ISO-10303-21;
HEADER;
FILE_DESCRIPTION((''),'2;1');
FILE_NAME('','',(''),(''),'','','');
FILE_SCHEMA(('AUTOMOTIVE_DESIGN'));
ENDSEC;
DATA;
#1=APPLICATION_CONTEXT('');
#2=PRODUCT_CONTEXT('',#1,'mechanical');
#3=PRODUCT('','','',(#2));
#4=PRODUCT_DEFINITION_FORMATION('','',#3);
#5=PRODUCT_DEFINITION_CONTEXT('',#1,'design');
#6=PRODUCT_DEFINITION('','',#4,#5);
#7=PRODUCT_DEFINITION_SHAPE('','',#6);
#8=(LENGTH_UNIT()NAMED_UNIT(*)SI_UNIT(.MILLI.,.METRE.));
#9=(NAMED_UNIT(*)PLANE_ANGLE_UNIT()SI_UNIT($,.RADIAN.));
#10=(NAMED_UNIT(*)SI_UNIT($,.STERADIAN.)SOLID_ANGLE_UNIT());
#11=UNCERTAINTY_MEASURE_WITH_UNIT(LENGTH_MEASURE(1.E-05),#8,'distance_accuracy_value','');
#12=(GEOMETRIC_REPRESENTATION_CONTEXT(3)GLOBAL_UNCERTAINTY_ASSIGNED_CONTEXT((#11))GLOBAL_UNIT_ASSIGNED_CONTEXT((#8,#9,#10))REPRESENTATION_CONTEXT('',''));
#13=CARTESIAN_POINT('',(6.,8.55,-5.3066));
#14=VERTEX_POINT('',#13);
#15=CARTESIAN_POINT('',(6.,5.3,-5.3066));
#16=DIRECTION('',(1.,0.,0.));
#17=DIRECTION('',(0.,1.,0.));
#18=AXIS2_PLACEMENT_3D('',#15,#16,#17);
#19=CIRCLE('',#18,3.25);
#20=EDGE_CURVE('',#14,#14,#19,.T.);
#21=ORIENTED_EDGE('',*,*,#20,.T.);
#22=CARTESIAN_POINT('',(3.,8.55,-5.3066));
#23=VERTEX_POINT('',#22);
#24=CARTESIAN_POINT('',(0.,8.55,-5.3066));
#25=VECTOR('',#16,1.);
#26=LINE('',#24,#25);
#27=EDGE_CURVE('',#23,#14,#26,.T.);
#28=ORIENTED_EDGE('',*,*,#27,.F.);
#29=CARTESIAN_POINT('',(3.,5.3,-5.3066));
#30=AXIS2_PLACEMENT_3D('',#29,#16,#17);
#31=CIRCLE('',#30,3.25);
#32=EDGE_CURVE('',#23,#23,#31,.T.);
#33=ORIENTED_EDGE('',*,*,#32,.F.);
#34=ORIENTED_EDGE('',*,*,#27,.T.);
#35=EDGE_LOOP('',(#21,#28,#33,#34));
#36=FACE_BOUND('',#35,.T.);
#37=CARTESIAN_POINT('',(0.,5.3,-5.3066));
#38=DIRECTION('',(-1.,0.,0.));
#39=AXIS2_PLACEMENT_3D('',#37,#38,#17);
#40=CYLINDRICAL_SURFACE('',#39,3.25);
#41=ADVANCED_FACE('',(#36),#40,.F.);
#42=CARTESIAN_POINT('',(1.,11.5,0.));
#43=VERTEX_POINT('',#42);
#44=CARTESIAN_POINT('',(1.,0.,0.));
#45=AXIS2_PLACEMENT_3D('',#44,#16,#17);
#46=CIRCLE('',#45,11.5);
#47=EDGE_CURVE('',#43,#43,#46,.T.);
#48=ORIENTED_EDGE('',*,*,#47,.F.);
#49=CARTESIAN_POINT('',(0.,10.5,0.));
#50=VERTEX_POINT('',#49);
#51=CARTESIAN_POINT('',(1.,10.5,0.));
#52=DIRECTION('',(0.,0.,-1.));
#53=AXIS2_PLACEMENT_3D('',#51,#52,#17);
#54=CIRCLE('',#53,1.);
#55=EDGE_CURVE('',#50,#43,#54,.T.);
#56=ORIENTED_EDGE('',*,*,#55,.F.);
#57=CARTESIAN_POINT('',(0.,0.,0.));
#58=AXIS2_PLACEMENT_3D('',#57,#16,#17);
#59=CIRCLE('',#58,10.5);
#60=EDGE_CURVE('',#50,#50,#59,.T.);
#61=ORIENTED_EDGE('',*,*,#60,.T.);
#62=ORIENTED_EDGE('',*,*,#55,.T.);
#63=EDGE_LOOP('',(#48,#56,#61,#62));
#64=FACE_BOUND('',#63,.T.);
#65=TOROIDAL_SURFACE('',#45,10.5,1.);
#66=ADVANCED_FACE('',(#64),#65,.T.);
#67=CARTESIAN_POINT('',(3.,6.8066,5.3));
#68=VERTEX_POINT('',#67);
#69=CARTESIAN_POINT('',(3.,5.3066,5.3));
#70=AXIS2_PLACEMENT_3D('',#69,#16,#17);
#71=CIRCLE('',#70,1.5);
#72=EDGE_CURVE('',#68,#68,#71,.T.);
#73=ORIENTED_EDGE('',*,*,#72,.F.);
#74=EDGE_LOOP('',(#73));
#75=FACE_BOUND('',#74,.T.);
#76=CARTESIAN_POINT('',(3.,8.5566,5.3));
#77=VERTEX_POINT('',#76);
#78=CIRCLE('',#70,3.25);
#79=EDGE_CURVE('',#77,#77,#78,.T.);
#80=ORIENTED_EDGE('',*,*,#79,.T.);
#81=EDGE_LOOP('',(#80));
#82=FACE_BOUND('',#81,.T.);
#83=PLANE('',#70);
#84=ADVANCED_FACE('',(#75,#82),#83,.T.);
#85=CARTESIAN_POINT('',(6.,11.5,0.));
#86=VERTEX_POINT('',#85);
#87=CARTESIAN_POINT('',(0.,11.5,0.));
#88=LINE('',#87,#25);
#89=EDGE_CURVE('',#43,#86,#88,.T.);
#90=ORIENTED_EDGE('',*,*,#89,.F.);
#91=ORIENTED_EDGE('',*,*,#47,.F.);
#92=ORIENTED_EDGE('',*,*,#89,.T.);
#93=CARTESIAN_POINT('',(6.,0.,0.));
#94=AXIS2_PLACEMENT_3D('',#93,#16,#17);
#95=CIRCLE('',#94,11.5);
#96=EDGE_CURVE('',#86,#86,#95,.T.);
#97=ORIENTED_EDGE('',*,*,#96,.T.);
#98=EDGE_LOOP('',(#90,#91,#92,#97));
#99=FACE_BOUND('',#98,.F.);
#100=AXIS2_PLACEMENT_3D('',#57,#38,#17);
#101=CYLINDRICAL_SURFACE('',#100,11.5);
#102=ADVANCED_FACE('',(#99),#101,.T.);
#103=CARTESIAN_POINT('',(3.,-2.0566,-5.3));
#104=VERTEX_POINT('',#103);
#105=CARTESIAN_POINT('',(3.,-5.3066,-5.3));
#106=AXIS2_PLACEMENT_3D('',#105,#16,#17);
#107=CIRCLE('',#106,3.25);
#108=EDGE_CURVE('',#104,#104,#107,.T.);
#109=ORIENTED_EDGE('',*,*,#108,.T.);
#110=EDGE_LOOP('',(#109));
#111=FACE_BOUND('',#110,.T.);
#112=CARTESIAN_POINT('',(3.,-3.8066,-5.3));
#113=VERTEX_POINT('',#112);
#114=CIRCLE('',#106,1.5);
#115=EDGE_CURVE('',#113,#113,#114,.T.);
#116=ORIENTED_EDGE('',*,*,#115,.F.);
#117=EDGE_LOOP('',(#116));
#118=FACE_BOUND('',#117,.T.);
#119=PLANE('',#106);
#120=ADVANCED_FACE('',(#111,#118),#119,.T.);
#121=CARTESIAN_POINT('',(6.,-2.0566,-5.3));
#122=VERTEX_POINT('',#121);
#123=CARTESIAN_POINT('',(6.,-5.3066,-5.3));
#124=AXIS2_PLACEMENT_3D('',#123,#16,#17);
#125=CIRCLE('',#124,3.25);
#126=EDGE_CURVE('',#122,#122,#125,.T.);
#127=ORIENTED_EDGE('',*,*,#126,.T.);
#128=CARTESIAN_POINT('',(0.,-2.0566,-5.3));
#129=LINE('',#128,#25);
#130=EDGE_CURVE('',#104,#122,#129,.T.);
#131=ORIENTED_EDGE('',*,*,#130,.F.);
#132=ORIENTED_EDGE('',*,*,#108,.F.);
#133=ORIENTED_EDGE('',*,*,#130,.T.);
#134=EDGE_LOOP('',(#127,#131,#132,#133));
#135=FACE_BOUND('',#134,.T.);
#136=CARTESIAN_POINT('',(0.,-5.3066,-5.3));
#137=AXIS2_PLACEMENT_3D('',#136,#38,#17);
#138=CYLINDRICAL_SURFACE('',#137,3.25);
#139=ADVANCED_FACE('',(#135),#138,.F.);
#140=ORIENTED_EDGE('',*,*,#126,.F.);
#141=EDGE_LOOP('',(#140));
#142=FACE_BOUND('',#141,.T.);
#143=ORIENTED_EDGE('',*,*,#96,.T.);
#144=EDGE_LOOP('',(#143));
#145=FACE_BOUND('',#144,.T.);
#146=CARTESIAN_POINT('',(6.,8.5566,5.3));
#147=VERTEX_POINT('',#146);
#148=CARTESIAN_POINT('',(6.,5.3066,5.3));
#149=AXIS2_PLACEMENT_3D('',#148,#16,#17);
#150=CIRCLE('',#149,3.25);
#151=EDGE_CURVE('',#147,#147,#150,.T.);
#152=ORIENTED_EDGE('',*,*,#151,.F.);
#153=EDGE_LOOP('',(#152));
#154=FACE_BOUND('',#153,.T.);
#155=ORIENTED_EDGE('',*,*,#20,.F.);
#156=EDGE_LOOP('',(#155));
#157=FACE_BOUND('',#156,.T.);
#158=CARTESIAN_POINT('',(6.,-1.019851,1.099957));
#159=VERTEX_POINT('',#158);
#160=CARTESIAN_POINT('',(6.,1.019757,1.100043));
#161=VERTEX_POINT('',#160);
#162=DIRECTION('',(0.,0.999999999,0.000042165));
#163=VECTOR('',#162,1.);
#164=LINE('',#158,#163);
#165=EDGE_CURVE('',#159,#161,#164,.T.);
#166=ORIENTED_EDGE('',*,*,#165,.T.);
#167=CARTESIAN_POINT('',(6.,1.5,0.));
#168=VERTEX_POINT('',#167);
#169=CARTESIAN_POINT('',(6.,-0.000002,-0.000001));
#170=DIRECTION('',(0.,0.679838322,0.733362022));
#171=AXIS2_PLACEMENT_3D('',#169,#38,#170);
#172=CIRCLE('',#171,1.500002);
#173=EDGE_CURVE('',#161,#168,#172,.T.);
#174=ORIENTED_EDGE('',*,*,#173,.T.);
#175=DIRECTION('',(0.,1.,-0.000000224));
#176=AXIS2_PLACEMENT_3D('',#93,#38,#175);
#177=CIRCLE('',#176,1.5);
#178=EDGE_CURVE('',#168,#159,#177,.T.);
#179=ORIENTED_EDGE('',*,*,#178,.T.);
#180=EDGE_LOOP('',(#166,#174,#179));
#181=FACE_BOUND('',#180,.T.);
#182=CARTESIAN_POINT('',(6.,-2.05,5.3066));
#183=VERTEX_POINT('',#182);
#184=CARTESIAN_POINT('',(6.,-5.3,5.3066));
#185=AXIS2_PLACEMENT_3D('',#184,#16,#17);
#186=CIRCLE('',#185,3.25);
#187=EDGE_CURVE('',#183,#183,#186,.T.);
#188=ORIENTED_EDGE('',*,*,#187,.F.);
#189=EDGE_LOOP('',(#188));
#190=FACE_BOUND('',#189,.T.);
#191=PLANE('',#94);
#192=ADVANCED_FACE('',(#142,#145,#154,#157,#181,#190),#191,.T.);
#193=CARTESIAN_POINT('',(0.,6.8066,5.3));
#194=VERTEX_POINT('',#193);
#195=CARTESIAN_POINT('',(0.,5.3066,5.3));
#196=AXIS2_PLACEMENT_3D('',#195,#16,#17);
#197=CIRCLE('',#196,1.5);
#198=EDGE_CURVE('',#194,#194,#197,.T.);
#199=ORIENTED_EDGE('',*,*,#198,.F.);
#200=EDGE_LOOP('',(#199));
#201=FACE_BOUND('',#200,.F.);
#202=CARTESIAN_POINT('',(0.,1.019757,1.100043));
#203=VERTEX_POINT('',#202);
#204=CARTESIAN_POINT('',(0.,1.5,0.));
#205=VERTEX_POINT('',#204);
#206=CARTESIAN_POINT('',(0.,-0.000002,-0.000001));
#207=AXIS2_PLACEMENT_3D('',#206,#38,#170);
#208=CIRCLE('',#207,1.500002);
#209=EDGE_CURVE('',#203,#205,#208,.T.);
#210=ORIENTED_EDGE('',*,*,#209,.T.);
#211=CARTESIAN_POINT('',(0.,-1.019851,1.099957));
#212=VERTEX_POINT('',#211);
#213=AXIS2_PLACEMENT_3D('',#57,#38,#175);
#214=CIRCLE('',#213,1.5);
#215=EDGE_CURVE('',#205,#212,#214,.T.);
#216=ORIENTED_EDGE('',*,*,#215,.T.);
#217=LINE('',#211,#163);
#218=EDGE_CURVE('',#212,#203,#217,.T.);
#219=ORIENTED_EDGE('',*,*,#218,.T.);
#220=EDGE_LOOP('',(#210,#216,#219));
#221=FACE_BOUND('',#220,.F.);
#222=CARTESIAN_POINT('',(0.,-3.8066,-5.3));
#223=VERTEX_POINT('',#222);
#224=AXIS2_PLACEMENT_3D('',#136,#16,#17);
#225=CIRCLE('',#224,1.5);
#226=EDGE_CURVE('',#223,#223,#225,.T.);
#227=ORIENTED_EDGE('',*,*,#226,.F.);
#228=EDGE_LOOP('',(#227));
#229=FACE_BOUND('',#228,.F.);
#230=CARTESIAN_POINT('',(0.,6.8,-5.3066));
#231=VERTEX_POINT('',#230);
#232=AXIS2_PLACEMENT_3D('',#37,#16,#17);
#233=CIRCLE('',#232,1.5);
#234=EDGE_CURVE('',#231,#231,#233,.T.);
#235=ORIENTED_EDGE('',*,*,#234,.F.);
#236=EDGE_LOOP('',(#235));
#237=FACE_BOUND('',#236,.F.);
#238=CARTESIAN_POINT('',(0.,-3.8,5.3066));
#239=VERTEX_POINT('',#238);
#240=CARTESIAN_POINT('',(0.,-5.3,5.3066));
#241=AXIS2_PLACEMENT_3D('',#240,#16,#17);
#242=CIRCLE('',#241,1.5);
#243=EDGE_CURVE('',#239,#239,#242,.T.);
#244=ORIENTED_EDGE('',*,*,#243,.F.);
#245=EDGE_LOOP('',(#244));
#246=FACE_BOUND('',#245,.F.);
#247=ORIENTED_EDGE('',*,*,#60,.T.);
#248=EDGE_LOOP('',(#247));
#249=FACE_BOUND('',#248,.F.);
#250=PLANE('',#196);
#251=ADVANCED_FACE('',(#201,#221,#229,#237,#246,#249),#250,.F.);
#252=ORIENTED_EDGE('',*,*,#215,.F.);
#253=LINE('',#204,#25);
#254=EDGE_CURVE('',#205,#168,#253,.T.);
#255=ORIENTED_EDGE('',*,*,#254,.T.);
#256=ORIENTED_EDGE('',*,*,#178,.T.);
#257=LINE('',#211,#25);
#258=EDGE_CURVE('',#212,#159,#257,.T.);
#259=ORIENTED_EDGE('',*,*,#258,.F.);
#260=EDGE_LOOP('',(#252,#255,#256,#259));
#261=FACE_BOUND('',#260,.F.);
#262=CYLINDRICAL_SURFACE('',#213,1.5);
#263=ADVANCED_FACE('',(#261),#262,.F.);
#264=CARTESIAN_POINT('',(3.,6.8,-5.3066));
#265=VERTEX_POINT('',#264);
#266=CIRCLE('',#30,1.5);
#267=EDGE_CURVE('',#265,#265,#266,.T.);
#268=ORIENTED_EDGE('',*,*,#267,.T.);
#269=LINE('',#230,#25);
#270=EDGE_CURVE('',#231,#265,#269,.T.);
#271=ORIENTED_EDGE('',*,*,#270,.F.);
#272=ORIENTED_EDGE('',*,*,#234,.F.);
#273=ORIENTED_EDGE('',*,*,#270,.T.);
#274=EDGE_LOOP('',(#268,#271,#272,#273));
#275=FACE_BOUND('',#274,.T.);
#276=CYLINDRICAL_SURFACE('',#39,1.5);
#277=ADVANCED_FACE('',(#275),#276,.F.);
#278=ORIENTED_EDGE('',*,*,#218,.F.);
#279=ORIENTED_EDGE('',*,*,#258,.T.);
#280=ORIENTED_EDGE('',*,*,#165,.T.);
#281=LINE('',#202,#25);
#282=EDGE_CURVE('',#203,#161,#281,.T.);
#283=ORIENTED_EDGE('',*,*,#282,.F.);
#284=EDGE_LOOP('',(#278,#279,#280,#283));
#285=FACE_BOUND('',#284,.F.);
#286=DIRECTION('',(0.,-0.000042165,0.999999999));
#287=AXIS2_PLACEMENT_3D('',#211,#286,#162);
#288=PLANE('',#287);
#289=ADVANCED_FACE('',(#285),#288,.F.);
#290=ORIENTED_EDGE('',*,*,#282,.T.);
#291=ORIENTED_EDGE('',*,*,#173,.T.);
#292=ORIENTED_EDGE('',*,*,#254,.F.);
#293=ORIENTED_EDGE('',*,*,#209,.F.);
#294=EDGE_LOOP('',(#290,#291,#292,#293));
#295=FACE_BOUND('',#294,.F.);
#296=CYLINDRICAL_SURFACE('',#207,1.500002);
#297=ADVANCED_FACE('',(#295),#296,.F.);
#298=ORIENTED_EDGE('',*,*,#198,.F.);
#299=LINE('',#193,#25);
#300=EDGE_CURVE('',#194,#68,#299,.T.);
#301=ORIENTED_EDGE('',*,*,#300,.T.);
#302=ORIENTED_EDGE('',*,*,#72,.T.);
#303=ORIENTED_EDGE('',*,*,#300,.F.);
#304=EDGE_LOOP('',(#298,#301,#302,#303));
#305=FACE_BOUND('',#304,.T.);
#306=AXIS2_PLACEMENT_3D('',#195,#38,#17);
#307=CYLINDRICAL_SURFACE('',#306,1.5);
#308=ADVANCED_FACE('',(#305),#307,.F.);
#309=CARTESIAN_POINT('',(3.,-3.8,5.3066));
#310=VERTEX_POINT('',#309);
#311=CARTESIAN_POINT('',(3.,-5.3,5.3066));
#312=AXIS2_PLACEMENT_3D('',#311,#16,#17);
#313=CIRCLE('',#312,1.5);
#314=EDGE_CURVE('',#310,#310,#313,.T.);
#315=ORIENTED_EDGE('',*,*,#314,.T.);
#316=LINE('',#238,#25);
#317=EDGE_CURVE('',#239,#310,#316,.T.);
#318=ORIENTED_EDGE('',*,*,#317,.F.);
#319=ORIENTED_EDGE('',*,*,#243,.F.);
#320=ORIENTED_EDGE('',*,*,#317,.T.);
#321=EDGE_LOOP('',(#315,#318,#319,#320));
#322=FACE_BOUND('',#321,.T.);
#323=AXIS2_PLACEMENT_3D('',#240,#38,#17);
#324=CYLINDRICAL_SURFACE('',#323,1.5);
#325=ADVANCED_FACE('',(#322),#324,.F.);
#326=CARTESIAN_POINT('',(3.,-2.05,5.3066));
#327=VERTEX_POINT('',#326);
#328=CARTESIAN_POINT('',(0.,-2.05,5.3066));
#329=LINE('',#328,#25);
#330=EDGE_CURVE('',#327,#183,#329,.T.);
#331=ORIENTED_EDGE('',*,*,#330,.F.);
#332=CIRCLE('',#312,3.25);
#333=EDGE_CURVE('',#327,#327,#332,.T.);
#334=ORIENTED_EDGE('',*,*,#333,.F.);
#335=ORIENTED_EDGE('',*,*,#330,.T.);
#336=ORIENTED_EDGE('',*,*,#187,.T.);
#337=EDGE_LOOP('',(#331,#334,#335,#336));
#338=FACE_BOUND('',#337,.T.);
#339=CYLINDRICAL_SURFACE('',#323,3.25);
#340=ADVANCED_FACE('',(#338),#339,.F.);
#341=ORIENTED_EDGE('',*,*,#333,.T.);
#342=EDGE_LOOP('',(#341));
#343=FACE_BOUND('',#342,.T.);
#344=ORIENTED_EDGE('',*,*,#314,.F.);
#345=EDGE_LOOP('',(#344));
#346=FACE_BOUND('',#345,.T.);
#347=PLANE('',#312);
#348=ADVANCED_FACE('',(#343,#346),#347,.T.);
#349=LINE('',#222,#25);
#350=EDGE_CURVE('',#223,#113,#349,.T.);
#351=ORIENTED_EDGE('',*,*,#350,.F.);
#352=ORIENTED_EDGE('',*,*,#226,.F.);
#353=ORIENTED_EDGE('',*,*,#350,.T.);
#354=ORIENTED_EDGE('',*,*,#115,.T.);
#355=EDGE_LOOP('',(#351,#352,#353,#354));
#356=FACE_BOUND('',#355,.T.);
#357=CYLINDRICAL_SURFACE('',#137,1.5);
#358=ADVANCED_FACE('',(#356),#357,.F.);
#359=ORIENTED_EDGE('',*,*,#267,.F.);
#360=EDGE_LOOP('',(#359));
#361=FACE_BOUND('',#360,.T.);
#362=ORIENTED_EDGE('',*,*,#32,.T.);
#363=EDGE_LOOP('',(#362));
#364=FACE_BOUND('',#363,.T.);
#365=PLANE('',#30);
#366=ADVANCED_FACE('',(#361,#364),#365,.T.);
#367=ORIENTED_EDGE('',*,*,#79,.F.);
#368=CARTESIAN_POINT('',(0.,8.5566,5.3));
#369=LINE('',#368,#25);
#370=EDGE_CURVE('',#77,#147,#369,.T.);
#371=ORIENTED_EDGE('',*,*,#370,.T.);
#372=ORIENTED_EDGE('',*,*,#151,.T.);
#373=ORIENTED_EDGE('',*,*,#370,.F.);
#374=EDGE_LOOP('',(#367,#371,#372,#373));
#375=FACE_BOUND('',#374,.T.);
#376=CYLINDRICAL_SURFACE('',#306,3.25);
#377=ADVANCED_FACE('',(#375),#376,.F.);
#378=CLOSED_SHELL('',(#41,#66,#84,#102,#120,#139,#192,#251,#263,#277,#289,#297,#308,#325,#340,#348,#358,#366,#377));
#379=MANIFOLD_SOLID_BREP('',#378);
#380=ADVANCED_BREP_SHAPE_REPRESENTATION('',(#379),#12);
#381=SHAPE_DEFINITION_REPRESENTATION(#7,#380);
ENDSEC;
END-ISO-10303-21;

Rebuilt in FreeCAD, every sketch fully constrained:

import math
import FreeCAD as App
import Part
import Sketcher
from FreeCAD import Vector
Q = App.Units.Quantity


def edges_at(feature, points):
    """Names of the edges that pass closest to the given points."""
    edges = feature.Shape.Edges
    near = lambda p: min(range(len(edges)), key=lambda i: edges[i].distToShape(Part.Vertex(*p))[0])
    return sorted({f"Edge{near(p) + 1}" for p in points})

doc = App.newDocument("Part")
body = doc.addObject("PartDesign::Body", "Body")

# Sketch on YZ plane
sketch1 = body.newObject("Sketcher::SketchObject", "Sketch")
sketch1.AttachmentSupport = (doc.getObject("YZ_Plane"), [""])
sketch1.MapMode = "FlatFace"
sketch1.addGeometry([
    Part.Circle(Vector(0, 0, 0), Vector(0, 0, 1), 11.5),  # 0
    Part.Circle(Vector(-5.3, -5.3, 0), Vector(0, 0, 1), 3.2),  # 1
    Part.Circle(Vector(5.3, -5.3, 0), Vector(0, 0, 1), 3.2),  # 2
    Part.ArcOfCircle(Part.Circle(Vector(0, 0, 0), Vector(0, 0, 1), 1.5), math.radians(133), math.radians(360)),  # 3
    Part.LineSegment(Vector(-1, 1.1, 0), Vector(1, 1.1, 0)),  # 4
    Part.ArcOfCircle(Part.Circle(Vector(0, 0, 0), Vector(0, 0, 1), 1.5), math.radians(0), math.radians(47)),  # 5
    Part.Circle(Vector(-5.3, 5.3, 0), Vector(0, 0, 1), 3.2),  # 6
    Part.Circle(Vector(5.3, 5.3, 0), Vector(0, 0, 1), 3.2),  # 7
], False)
sketch1.addConstraint([
    Sketcher.Constraint("Coincident", 3, 1, 4, 1),
    Sketcher.Constraint("Coincident", 4, 2, 5, 2),
    Sketcher.Constraint("Tangent", 5, 1, 3, 2),
    Sketcher.Constraint("Coincident", 0, 3, -1, 1),
    Sketcher.Constraint("Coincident", 3, 3, -1, 1),
    Sketcher.Constraint("Equal", 1, 2),
    Sketcher.Constraint("Equal", 3, 5),
    Sketcher.Constraint("Equal", 2, 6),
    Sketcher.Constraint("Equal", 6, 7),
    Sketcher.Constraint("Symmetric", 2, 3, 6, 3, -1, 1),
    Sketcher.Constraint("Symmetric", 1, 3, 7, 3, -1, 1),
    Sketcher.Constraint("PointOnObject", 5, 1, -1),
    Sketcher.Constraint("Diameter", 0, Q("23 mm")),
    Sketcher.Constraint("Diameter", 1, Q("6.5 mm")),
    Sketcher.Constraint("Radius", 3, Q("1.5 mm")),
    Sketcher.Constraint("DistanceY", 1, 3, -1, 1, Q("5.3 mm")),
    Sketcher.Constraint("DistanceX", -1, 1, 2, 3, Q("5.3 mm")),
    Sketcher.Constraint("DistanceX", 1, 3, -1, 1, Q("5.3066 mm")),
    Sketcher.Constraint("DistanceY", 2, 3, -1, 1, Q("5.3066 mm")),
    Sketcher.Constraint("Distance", 4, Q("2.039608 mm")),
    Sketcher.Constraint("DistanceX", 3, 1, -1, 1, Q("1.019851 mm")),
])
pad1 = body.newObject("PartDesign::Pad", "Pad")
pad1.Profile = sketch1
pad1.Length = 6

# Sketch on YZ plane
sketch2 = body.newObject("Sketcher::SketchObject", "Sketch001")
sketch2.AttachmentSupport = (doc.getObject("YZ_Plane"), [""])
sketch2.MapMode = "FlatFace"
sketch2.addGeometry([
    Part.Circle(Vector(5.3, 5.3, 0), Vector(0, 0, 1), 3.2),  # 0
    Part.Circle(Vector(5.3, 5.3, 0), Vector(0, 0, 1), 1.5),  # 1
    Part.Circle(Vector(-5.3, -5.3, 0), Vector(0, 0, 1), 3.2),  # 2
    Part.Circle(Vector(-5.3, -5.3, 0), Vector(0, 0, 1), 1.5),  # 3
    Part.Circle(Vector(5.3, -5.3, 0), Vector(0, 0, 1), 3.2),  # 4
    Part.Circle(Vector(5.3, -5.3, 0), Vector(0, 0, 1), 1.5),  # 5
    Part.Circle(Vector(-5.3, 5.3, 0), Vector(0, 0, 1), 3.2),  # 6
    Part.Circle(Vector(-5.3, 5.3, 0), Vector(0, 0, 1), 1.5),  # 7
], False)
sketch2.addConstraint([
    Sketcher.Constraint("Coincident", 1, 3, 0, 3),
    Sketcher.Constraint("Coincident", 3, 3, 2, 3),
    Sketcher.Constraint("Coincident", 5, 3, 4, 3),
    Sketcher.Constraint("Coincident", 7, 3, 6, 3),
    Sketcher.Constraint("Equal", 0, 2),
    Sketcher.Constraint("Equal", 1, 3),
    Sketcher.Constraint("Equal", 2, 4),
    Sketcher.Constraint("Equal", 3, 5),
    Sketcher.Constraint("Equal", 4, 6),
    Sketcher.Constraint("Equal", 5, 7),
    Sketcher.Constraint("Symmetric", 0, 3, 2, 3, -1, 1),
    Sketcher.Constraint("Symmetric", 4, 3, 6, 3, -1, 1),
    Sketcher.Constraint("Diameter", 1, Q("3 mm")),
    Sketcher.Constraint("Diameter", 0, Q("6.5 mm")),
    Sketcher.Constraint("DistanceY", -1, 1, 0, 3, Q("5.3 mm")),
    Sketcher.Constraint("DistanceX", -1, 1, 4, 3, Q("5.3 mm")),
    Sketcher.Constraint("DistanceX", -1, 1, 0, 3, Q("5.3066 mm")),
    Sketcher.Constraint("DistanceY", 4, 3, -1, 1, Q("5.3066 mm")),
])
pad2 = body.newObject("PartDesign::Pad", "Pad001")
pad2.Profile = sketch2
pad2.Length = 3
doc.recompute()

fillet = body.newObject("PartDesign::Fillet", "Fillet")
fillet.Base = (pad2, edges_at(pad2, [(0, -11.5, 0)]))
fillet.Radius = 1

doc.recompute()
